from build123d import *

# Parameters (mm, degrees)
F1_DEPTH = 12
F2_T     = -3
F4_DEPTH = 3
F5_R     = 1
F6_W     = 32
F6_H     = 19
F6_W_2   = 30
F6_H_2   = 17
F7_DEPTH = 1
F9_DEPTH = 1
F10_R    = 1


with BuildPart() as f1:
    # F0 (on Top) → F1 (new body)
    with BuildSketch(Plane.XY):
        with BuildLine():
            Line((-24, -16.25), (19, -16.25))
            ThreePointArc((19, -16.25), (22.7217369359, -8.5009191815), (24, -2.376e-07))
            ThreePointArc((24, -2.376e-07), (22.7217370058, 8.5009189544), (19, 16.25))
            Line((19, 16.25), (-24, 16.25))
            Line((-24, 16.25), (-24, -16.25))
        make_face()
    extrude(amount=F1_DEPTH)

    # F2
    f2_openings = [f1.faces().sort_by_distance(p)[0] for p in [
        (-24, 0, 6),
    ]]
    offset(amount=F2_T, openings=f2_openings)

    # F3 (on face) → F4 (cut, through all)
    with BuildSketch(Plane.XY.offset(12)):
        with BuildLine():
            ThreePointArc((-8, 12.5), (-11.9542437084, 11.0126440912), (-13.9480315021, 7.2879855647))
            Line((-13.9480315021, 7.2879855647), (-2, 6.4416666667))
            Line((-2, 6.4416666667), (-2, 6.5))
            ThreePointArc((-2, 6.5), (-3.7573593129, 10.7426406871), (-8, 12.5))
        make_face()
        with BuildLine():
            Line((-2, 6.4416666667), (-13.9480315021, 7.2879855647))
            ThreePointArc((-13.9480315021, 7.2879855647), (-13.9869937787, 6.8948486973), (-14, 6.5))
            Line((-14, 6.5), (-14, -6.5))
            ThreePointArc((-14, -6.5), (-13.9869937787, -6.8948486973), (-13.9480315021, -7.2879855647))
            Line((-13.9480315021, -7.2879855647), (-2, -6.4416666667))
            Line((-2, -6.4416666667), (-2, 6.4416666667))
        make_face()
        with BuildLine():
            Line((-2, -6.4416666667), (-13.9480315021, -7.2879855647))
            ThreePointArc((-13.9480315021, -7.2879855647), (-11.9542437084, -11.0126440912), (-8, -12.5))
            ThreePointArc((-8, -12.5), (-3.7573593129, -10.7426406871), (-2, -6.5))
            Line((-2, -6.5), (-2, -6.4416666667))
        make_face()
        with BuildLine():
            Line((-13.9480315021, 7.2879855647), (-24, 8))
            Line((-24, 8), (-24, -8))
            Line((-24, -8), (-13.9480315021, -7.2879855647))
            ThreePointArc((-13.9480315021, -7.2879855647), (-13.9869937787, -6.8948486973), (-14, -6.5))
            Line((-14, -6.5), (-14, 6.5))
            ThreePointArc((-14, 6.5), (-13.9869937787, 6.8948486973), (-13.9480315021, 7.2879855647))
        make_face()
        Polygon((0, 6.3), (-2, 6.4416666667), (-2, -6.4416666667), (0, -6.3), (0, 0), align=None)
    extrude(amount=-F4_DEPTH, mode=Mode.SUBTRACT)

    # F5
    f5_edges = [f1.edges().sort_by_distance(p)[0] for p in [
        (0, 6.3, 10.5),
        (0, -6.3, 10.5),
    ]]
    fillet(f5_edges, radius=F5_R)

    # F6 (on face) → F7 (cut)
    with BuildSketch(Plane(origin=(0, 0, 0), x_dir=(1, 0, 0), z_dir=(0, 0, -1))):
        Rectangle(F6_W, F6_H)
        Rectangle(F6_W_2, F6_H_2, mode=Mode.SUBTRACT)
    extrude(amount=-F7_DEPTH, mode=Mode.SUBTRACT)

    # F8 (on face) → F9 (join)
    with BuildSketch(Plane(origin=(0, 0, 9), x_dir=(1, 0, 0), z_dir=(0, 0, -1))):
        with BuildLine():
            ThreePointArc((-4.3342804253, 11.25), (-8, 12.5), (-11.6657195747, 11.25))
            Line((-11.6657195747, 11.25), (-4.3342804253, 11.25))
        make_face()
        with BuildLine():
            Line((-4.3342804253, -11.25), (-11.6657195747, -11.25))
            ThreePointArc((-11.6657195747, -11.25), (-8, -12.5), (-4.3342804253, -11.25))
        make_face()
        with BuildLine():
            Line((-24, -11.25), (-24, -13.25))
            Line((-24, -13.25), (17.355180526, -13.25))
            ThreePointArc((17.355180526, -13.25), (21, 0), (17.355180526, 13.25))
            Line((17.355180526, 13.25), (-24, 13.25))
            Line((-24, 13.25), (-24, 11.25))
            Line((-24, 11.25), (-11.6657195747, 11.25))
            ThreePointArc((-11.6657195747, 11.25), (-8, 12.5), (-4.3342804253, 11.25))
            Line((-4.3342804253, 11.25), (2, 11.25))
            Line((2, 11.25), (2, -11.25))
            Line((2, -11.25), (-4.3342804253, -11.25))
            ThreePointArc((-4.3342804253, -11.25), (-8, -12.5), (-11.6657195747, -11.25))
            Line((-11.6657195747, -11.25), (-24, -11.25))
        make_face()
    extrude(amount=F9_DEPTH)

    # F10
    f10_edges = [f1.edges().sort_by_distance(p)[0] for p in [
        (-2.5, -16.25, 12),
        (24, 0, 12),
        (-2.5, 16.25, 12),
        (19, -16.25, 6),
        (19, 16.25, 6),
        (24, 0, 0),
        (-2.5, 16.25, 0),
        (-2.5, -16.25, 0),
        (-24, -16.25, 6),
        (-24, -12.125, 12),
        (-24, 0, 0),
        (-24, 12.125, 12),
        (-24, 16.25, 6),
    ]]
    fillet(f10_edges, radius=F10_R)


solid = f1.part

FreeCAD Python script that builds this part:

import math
import FreeCAD as App
import Part
import Sketcher
Q = App.Units.Quantity


def edges_at(feature, points):
    """Names of the edges that pass closest to the given points."""
    edges = feature.Shape.Edges
    near = lambda p: min(range(len(edges)), key=lambda i: edges[i].distToShape(Part.Vertex(*p))[0])
    return sorted({f"Edge{near(p) + 1}" for p in points})


def faces_at(feature, points):
    """Names of the faces that lie closest to the given points."""
    faces = feature.Shape.Faces
    near = lambda p: min(range(len(faces)), key=lambda i: faces[i].distToShape(Part.Vertex(*p))[0])
    return sorted({f"Face{near(p) + 1}" for p in points})

doc = App.newDocument("Part")
body = doc.addObject("PartDesign::Body", "Body")

# Sketch on XY plane
sketch1 = body.newObject("Sketcher::SketchObject", "Sketch")
sketch1.AttachmentSupport = (doc.getObject("XY_Plane"), [""])
sketch1.MapMode = "FlatFace"
sketch1.addGeometry([
    Part.LineSegment(App.Vector(-24, -16.25, 0), App.Vector(19, -16.25, 0)),  # 0
    Part.ArcOfCircle(Part.Circle(App.Vector(-4.90625, 0, 0), App.Vector(0, 0, 1), 28.90625), math.radians(-34.205458), math.radians(0)),  # 1
    Part.ArcOfCircle(Part.Circle(App.Vector(-4.90625, 0, 0), App.Vector(0, 0, 1), 28.90625), math.radians(0), math.radians(34.205458)),  # 2
    Part.LineSegment(App.Vector(19, 16.25, 0), App.Vector(-24, 16.25, 0)),  # 3
    Part.LineSegment(App.Vector(-24, 16.25, 0), App.Vector(-24, -16.25, 0)),  # 4
], False)
sketch1.addConstraint([
    Sketcher.Constraint("Coincident", 0, 2, 1, 1),
    Sketcher.Constraint("Tangent", 1, 2, 2, 1),
    Sketcher.Constraint("Coincident", 2, 2, 3, 1),
    Sketcher.Constraint("Coincident", 3, 2, 4, 1),
    Sketcher.Constraint("Coincident", 4, 2, 0, 1),
    Sketcher.Constraint("Horizontal", 0),
    Sketcher.Constraint("Horizontal", 3),
    Sketcher.Constraint("Vertical", 4),
    Sketcher.Constraint("Equal", 1, 2),
    Sketcher.Constraint("Symmetric", 0, 2, 2, 2, -1),
    Sketcher.Constraint("PointOnObject", 1, 2, -1),
    Sketcher.Constraint("DistanceX", 0, 1, 0, 2, Q("43 mm")),
    Sketcher.Constraint("DistanceY", 4, 2, 4, 1, Q("32.5 mm")),
    Sketcher.Constraint("DistanceX", -1, 1, 0, 2, Q("19 mm")),
    Sketcher.Constraint("DistanceX", -1, 1, 1, 2, Q("24 mm")),
])
pad1 = body.newObject("PartDesign::Pad", "Pad")
pad1.Profile = sketch1
pad1.Length = 12
doc.recompute()

thickness = body.newObject("PartDesign::Thickness", "Thickness")
thickness.Base = (pad1, faces_at(pad1, [(-24, 0, 6)]))
thickness.Value = 3
thickness.Reversed = True
thickness.Join = "Arc"

# Sketch on XY plane
sketch2 = body.newObject("Sketcher::SketchObject", "Sketch001")
sketch2.AttachmentSupport = (doc.getObject("XY_Plane"), [""])
sketch2.MapMode = "FlatFace"
sketch2.AttachmentOffset = App.Placement(App.Vector(0, 0, 12), App.Rotation())
sketch2.addGeometry([
    Part.ArcOfCircle(Part.Circle(App.Vector(-8, 6.5, 0), App.Vector(0, 0, 1), 6), math.radians(0), math.radians(90)),  # 0
    Part.ArcOfCircle(Part.Circle(App.Vector(-8, 6.5, 0), App.Vector(0, 0, 1), 6), math.radians(90), math.radians(172.453492)),  # 1
    Part.LineSegment(App.Vector(-13.948032, 7.287986, 0), App.Vector(-24, 8, 0)),  # 2
    Part.LineSegment(App.Vector(-24, 8, 0), App.Vector(-24, -8, 0)),  # 3
    Part.LineSegment(App.Vector(-24, -8, 0), App.Vector(-13.948032, -7.287986, 0)),  # 4
    Part.ArcOfCircle(Part.Circle(App.Vector(-8, -6.5, 0), App.Vector(0, 0, 1), 6), math.radians(-172.453492), math.radians(-90)),  # 5
    Part.ArcOfCircle(Part.Circle(App.Vector(-8, -6.5, 0), App.Vector(0, 0, 1), 6), math.radians(-90), math.radians(0)),  # 6
    Part.LineSegment(App.Vector(-2, -6.5, 0), App.Vector(-2, -6.441667, 0)),  # 7
    Part.LineSegment(App.Vector(-2, -6.441667, 0), App.Vector(0, -6.3, 0)),  # 8
    Part.LineSegment(App.Vector(0, -6.3, 0), App.Vector(0, 6.3, 0)),  # 9
    Part.LineSegment(App.Vector(0, 6.3, 0), App.Vector(-2, 6.441667, 0)),  # 10
    Part.LineSegment(App.Vector(-2, 6.441667, 0), App.Vector(-2, 6.5, 0)),  # 11
], False)
sketch2.addConstraint([
    Sketcher.Constraint("Tangent", 0, 2, 1, 1),
    Sketcher.Constraint("Coincident", 1, 2, 2, 1),
    Sketcher.Constraint("Coincident", 2, 2, 3, 1),
    Sketcher.Constraint("Coincident", 3, 2, 4, 1),
    Sketcher.Constraint("Coincident", 4, 2, 5, 1),
    Sketcher.Constraint("Tangent", 5, 2, 6, 1),
    Sketcher.Constraint("Tangent", 6, 2, 7, 1),
    Sketcher.Constraint("Coincident", 7, 2, 8, 1),
    Sketcher.Constraint("Coincident", 8, 2, 9, 1),
    Sketcher.Constraint("Coincident", 9, 2, 10, 1),
    Sketcher.Constraint("Coincident", 10, 2, 11, 1),
    Sketcher.Constraint("Tangent", 11, 2, 0, 1),
    Sketcher.Constraint("Vertical", 3),
    Sketcher.Constraint("Vertical", 7),
    Sketcher.Constraint("Vertical", 9),
    Sketcher.Constraint("Vertical", 11),
    Sketcher.Constraint("Equal", 0, 1),
    Sketcher.Constraint("Equal", 1, 5),
    Sketcher.Constraint("Equal", 5, 6),
    Sketcher.Constraint("Symmetric", 8, 2, 9, 2, -1, 1),
    Sketcher.Constraint("Symmetric", 0, 3, 5, 3, -1),
    Sketcher.Constraint("Parallel", 4, 8),
    Sketcher.Constraint("Parallel", 2, 10),
    Sketcher.Constraint("Vertical", 6, 3, 0, 2),
    Sketcher.Constraint("Vertical", 1, 2, 4, 2),
    Sketcher.Constraint("Vertical", 0, 2, 5, 2),
    Sketcher.Constraint("Equal", 7, 11),
    Sketcher.Constraint("Radius", 0, Q("6 mm")),
    Sketcher.Constraint("DistanceY", 3, 2, 3, 1, Q("16 mm")),
    Sketcher.Constraint("DistanceY", 9, 1, 9, 2, Q("12.6 mm")),
    Sketcher.Constraint("DistanceX", 0, 3, -1, 1, Q("8 mm")),
    Sketcher.Constraint("DistanceX", 2, 2, -1, 1, Q("24 mm")),
    Sketcher.Constraint("DistanceY", 5, 3, 0, 3, Q("13 mm")),
    Sketcher.Constraint("Distance", 8, Q("2.005011 mm")),
])
pocket1 = body.newObject("PartDesign::Pocket", "Pocket")
pocket1.Profile = sketch2
pocket1.Length = 3
doc.recompute()

fillet = body.newObject("PartDesign::Fillet", "Fillet")
fillet.Base = (pocket1, edges_at(pocket1, [(0, 6.3, 10.5), (0, -6.3, 10.5)]))
fillet.Radius = 1

# Sketch on XY plane
sketch3 = body.newObject("Sketcher::SketchObject", "Sketch002")
sketch3.AttachmentSupport = (doc.getObject("XY_Plane"), [""])
sketch3.MapMode = "FlatFace"
sketch3.addGeometry([
    Part.LineSegment(App.Vector(-16, -9.5, 0), App.Vector(-16, 9.5, 0)),  # 0
    Part.LineSegment(App.Vector(-16, 9.5, 0), App.Vector(16, 9.5, 0)),  # 1
    Part.LineSegment(App.Vector(16, 9.5, 0), App.Vector(16, -9.5, 0)),  # 2
    Part.LineSegment(App.Vector(16, -9.5, 0), App.Vector(-16, -9.5, 0)),  # 3
    Part.LineSegment(App.Vector(15, 8.5, 0), App.Vector(-15, 8.5, 0)),  # 4
    Part.LineSegment(App.Vector(-15, 8.5, 0), App.Vector(-15, -8.5, 0)),  # 5
    Part.LineSegment(App.Vector(-15, -8.5, 0), App.Vector(15, -8.5, 0)),  # 6
    Part.LineSegment(App.Vector(15, -8.5, 0), App.Vector(15, 8.5, 0)),  # 7
], False)
sketch3.addConstraint([
    Sketcher.Constraint("Coincident", 0, 2, 1, 1),
    Sketcher.Constraint("Coincident", 1, 2, 2, 1),
    Sketcher.Constraint("Coincident", 2, 2, 3, 1),
    Sketcher.Constraint("Coincident", 3, 2, 0, 1),
    Sketcher.Constraint("Coincident", 4, 2, 5, 1),
    Sketcher.Constraint("Coincident", 5, 2, 6, 1),
    Sketcher.Constraint("Coincident", 6, 2, 7, 1),
    Sketcher.Constraint("Coincident", 7, 2, 4, 1),
    Sketcher.Constraint("Vertical", 0),
    Sketcher.Constraint("Horizontal", 1),
    Sketcher.Constraint("Vertical", 2),
    Sketcher.Constraint("Horizontal", 3),
    Sketcher.Constraint("Horizontal", 4),
    Sketcher.Constraint("Vertical", 5),
    Sketcher.Constraint("Horizontal", 6),
    Sketcher.Constraint("Vertical", 7),
    Sketcher.Constraint("Symmetric", 0, 2, 2, 2, -1, 1),
    Sketcher.Constraint("Symmetric", 4, 2, 6, 2, -1, 1),
    Sketcher.Constraint("DistanceX", 1, 1, 1, 2, Q("32 mm")),
    Sketcher.Constraint("DistanceX", 4, 2, 4, 1, Q("30 mm")),
    Sketcher.Constraint("DistanceY", 0, 1, 0, 2, Q("19 mm")),
    Sketcher.Constraint("DistanceY", 5, 2, 5, 1, Q("17 mm")),
])
pocket2 = body.newObject("PartDesign::Pocket", "Pocket001")
pocket2.Profile = sketch3
pocket2.Length = 1
pocket2.Reversed = True

# Sketch on XY plane
sketch4 = body.newObject("Sketcher::SketchObject", "Sketch003")
sketch4.AttachmentSupport = (doc.getObject("XY_Plane"), [""])
sketch4.MapMode = "FlatFace"
sketch4.AttachmentOffset = App.Placement(App.Vector(0, 0, 9), App.Rotation())
sketch4.addGeometry([
    Part.LineSegment(App.Vector(2, -11.25, 0), App.Vector(2, 11.25, 0)),  # 0
    Part.LineSegment(App.Vector(2, 11.25, 0), App.Vector(-24, 11.25, 0)),  # 1
    Part.LineSegment(App.Vector(-24, 11.25, 0), App.Vector(-24, 13.25, 0)),  # 2
    Part.LineSegment(App.Vector(-24, 13.25, 0), App.Vector(17.355181, 13.25, 0)),  # 3
    Part.ArcOfCircle(Part.Circle(App.Vector(-4.90625, 0, 0), App.Vector(0, 0, 1), 25.90625), math.radians(-30.761101), math.radians(30.761101)),  # 4
    Part.LineSegment(App.Vector(17.355181, -13.25, 0), App.Vector(-24, -13.25, 0)),  # 5
    Part.LineSegment(App.Vector(-24, -13.25, 0), App.Vector(-24, -11.25, 0)),  # 6
    Part.LineSegment(App.Vector(-24, -11.25, 0), App.Vector(2, -11.25, 0)),  # 7
], False)
sketch4.addConstraint([
    Sketcher.Constraint("Coincident", 0, 2, 1, 1),
    Sketcher.Constraint("Coincident", 1, 2, 2, 1),
    Sketcher.Constraint("Coincident", 2, 2, 3, 1),
    Sketcher.Constraint("Coincident", 3, 2, 4, 2),
    Sketcher.Constraint("Coincident", 4, 1, 5, 1),
    Sketcher.Constraint("Coincident", 5, 2, 6, 1),
    Sketcher.Constraint("Coincident", 6, 2, 7, 1),
    Sketcher.Constraint("Coincident", 7, 2, 0, 1),
    Sketcher.Constraint("Vertical", 0),
    Sketcher.Constraint("Horizontal", 1),
    Sketcher.Constraint("Vertical", 2),
    Sketcher.Constraint("Horizontal", 3),
    Sketcher.Constraint("Horizontal", 5),
    Sketcher.Constraint("Vertical", 6),
    Sketcher.Constraint("Horizontal", 7),
    Sketcher.Constraint("Symmetric", 3, 2, 4, 1, -1),
    Sketcher.Constraint("Symmetric", 1, 2, 6, 2, -1),
    Sketcher.Constraint("DistanceX", 1, 2, 1, 1, Q("26 mm")),
    Sketcher.Constraint("DistanceY", 2, 1, 2, 2, Q("2 mm")),
    Sketcher.Constraint("DistanceY", 0, 1, 0, 2, Q("22.5 mm")),
    Sketcher.Constraint("DistanceX", -1, 1, 0, 2, Q("2 mm")),
    Sketcher.Constraint("Radius", 4, Q("25.90625 mm")),
    Sketcher.Constraint("DistanceX", 3, 1, 3, 2, Q("41.355181 mm")),
])
pad2 = body.newObject("PartDesign::Pad", "Pad001")
pad2.Profile = sketch4
pad2.Length = 1
pad2.Reversed = True
doc.recompute()

fillet2 = body.newObject("PartDesign::Fillet", "Fillet001")
fillet2.Base = (pad2, edges_at(pad2, [
    (-2.5, -16.25, 12),
    (22.722, 8.501, 12),
    (-2.5, 16.25, 12),
    (19, -16.25, 6),
    (19, 16.25, 6),
    (22.722, 8.501, 0),
    (-2.5, 16.25, 0),
    (-2.5, -16.25, 0),
    (-24, -16.25, 6),
    (-24, -12.125, 12),
    (-24, 0, 0),
    (-24, 12.125, 12),
    (-24, 16.25, 6),
]))
fillet2.Radius = 1

doc.recompute()
